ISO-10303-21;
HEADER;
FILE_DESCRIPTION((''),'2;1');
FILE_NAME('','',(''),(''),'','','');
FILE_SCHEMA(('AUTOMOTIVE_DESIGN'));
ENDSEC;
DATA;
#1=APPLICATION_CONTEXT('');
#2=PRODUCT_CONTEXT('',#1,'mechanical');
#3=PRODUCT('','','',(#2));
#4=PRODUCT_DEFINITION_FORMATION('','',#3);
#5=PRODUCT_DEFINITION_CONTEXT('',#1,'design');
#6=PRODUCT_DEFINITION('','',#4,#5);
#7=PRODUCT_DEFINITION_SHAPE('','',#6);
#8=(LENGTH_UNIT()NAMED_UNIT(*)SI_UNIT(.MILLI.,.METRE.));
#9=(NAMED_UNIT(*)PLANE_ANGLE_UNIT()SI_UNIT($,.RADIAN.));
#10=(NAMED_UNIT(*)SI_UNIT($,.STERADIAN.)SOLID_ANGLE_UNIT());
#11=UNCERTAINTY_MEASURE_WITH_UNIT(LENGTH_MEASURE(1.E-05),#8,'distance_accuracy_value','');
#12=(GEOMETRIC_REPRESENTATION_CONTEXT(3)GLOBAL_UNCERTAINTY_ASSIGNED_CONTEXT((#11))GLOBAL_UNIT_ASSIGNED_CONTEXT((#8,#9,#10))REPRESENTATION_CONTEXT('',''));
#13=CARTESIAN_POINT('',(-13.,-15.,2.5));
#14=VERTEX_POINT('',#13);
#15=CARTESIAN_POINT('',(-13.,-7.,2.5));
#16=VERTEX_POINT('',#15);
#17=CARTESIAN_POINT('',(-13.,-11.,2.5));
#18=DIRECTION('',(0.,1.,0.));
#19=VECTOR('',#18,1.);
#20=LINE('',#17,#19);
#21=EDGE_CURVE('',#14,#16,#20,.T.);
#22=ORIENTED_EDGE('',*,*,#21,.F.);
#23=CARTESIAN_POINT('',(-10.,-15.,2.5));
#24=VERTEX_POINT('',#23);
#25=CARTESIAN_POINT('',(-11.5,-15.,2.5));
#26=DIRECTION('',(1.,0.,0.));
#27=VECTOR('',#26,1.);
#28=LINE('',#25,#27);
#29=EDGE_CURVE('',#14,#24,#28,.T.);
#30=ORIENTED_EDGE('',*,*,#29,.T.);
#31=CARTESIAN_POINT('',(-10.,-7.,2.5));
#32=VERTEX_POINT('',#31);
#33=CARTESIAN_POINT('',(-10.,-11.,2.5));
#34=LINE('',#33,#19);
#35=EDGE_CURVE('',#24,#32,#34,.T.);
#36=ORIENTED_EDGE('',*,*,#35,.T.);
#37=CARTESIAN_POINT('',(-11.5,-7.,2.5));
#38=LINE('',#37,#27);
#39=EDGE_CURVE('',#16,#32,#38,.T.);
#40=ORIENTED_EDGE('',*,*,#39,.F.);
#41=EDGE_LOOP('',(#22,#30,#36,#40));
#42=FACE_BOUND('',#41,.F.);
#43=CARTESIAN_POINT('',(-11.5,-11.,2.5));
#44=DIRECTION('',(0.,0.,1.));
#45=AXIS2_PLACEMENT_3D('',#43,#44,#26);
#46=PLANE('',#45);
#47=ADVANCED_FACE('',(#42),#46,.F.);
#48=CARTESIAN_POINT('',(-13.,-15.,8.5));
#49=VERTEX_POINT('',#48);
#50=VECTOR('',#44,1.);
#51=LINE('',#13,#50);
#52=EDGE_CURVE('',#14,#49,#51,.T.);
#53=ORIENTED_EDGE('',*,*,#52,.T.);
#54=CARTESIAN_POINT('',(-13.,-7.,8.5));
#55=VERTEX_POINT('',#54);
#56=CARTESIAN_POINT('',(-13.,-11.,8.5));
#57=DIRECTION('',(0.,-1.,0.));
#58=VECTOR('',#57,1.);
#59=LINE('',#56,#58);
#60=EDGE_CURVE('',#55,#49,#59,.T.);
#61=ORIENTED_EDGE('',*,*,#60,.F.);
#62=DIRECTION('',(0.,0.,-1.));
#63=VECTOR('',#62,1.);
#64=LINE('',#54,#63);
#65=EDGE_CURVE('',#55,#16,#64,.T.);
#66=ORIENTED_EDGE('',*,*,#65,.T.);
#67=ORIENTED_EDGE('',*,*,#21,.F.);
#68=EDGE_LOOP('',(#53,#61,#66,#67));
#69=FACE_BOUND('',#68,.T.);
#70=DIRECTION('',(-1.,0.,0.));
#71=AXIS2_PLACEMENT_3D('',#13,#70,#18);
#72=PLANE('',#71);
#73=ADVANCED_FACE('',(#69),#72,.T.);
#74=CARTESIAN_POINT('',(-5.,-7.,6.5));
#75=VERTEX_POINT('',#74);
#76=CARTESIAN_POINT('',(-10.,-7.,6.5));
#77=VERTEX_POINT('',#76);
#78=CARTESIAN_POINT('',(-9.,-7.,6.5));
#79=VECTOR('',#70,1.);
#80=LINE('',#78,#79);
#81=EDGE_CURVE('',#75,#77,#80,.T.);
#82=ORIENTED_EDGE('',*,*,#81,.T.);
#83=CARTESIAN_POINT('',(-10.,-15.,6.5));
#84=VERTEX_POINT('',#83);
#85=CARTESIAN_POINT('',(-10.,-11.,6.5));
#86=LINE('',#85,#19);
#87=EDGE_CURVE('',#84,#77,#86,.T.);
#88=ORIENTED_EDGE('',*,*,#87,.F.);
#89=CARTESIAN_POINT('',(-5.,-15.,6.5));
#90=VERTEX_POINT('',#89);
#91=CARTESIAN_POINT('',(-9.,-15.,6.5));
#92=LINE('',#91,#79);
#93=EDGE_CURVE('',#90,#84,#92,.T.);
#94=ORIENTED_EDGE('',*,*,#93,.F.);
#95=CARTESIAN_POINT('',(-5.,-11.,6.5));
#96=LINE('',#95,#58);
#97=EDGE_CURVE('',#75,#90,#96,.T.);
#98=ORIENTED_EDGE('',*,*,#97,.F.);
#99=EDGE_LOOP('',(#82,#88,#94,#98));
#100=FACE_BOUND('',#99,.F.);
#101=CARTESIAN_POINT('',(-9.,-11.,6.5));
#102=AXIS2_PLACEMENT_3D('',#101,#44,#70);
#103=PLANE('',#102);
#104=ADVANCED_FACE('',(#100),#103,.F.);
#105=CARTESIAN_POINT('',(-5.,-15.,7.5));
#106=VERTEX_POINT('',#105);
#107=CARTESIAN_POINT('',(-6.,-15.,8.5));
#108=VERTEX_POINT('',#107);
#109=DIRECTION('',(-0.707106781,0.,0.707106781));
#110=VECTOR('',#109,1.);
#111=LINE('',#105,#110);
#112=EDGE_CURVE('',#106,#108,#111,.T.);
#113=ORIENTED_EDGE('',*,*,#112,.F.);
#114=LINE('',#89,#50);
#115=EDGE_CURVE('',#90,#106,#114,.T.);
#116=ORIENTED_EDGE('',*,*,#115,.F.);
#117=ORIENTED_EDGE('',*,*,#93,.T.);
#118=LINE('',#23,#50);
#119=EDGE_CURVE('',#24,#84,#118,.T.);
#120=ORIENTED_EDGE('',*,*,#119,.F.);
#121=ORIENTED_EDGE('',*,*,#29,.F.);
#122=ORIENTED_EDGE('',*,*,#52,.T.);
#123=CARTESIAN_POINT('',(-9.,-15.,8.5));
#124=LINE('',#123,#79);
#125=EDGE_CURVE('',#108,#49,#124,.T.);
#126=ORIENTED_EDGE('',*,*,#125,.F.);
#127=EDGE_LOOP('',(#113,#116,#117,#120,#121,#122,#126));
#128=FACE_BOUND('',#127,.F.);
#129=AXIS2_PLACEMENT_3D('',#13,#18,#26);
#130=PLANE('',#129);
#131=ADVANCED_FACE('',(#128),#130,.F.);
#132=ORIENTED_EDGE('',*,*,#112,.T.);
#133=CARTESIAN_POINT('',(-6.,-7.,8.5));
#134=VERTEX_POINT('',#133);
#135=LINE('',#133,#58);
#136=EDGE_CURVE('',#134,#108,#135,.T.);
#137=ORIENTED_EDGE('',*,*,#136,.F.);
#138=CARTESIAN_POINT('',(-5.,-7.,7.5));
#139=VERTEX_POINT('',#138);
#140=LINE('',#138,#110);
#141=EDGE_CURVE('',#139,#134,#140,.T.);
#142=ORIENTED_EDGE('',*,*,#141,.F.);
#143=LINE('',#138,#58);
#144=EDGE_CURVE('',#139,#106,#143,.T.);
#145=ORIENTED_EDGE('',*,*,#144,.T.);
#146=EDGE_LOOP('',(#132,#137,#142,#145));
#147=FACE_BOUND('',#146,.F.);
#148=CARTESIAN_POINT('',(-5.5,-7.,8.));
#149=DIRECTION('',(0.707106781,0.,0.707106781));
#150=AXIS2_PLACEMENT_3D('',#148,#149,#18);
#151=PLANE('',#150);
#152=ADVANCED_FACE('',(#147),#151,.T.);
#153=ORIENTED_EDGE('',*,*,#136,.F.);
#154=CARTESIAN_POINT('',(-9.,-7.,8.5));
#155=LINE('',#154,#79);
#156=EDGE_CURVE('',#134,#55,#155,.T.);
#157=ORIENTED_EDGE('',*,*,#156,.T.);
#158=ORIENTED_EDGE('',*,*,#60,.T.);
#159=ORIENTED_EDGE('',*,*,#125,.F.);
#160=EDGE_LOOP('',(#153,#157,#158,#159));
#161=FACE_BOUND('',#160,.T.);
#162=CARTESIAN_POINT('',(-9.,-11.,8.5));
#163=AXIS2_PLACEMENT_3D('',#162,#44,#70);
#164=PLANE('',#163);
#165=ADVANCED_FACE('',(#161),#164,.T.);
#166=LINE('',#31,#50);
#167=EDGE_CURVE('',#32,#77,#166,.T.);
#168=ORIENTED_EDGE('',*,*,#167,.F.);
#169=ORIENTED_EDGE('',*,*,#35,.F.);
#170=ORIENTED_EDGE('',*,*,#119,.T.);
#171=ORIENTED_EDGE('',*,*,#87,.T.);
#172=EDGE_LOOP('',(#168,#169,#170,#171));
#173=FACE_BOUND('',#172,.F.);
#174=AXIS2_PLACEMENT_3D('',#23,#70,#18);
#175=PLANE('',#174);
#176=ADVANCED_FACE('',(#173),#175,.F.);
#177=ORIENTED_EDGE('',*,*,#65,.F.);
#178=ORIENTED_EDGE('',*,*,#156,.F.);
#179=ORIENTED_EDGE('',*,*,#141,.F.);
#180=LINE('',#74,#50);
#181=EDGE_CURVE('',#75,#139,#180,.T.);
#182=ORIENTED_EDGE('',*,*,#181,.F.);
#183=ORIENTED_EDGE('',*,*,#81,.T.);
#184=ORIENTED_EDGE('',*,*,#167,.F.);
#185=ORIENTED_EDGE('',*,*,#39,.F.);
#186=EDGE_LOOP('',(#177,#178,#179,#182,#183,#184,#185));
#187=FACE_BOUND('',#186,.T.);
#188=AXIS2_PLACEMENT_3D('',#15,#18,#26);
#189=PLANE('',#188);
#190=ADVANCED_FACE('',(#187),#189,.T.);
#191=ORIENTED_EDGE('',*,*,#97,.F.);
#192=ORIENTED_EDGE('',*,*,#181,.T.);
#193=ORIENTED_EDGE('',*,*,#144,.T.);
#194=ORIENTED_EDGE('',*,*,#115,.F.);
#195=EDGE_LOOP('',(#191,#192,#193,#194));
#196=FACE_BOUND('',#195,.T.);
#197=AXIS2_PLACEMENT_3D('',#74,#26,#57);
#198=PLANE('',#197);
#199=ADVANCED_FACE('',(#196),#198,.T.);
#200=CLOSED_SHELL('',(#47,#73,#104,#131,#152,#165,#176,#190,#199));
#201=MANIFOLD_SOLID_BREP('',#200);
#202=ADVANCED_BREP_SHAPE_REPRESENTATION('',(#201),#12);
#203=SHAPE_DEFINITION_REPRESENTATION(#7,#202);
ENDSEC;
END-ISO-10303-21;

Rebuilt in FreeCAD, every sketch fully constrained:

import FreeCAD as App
import Part
import Sketcher

V = App.Vector
Q = App.Units.Quantity


def edges_at(feature, points):
    """Names of the edges that pass closest to the given points."""
    edges = feature.Shape.Edges
    near = lambda p: min(range(len(edges)), key=lambda i: edges[i].distToShape(Part.Vertex(*p))[0])
    return sorted({f"Edge{near(p) + 1}" for p in points})

doc = App.newDocument("Part")
body = doc.addObject("PartDesign::Body", "Body")

# Sketch on XY plane
sketch1 = body.newObject("Sketcher::SketchObject", "Sketch")
sketch1.AttachmentSupport = (doc.getObject("XY_Plane"), [""])
sketch1.MapMode = "FlatFace"
sketch1.AttachmentOffset = App.Placement(V(0, 0, 2.5), App.Rotation())
sketch1.addGeometry([
    Part.LineSegment(V(-13, -7, 0), V(-13, -15, 0)),
    Part.LineSegment(V(-13, -15, 0), V(-10, -15, 0)),
    Part.LineSegment(V(-10, -15, 0), V(-10, -7, 0)),
    Part.LineSegment(V(-10, -7, 0), V(-13, -7, 0)),
], False)
sketch1.addConstraint([
    Sketcher.Constraint("Coincident", 0, 2, 1, 1),
    Sketcher.Constraint("Coincident", 1, 2, 2, 1),
    Sketcher.Constraint("Coincident", 2, 2, 3, 1),
    Sketcher.Constraint("Coincident", 3, 2, 0, 1),
    Sketcher.Constraint("Vertical", 0),
    Sketcher.Constraint("Horizontal", 1),
    Sketcher.Constraint("Vertical", 2),
    Sketcher.Constraint("Horizontal", 3),
    Sketcher.Constraint("DistanceX", 1, 1, 1, 2, Q("3 mm")),
    Sketcher.Constraint("DistanceY", 0, 2, 0, 1, Q("8 mm")),
    Sketcher.Constraint("DistanceX", 0, 2, -1, 1, Q("13 mm")),
    Sketcher.Constraint("DistanceY", 0, 2, -1, 1, Q("15 mm")),
])
pad1 = body.newObject("PartDesign::Pad", "Pad")
pad1.Profile = sketch1
pad1.Length = 4
body2 = doc.addObject("PartDesign::Body", "Body001")

# Sketch on XY plane
sketch2 = body2.newObject("Sketcher::SketchObject", "Sketch001")
sketch2.AttachmentSupport = (doc.getObject("XY_Plane001"), [""])
sketch2.MapMode = "FlatFace"
sketch2.AttachmentOffset = App.Placement(V(0, 0, 6), App.Rotation())
sketch2.addGeometry([
    Part.LineSegment(V(-13, -7, 0), V(-13, -15, 0)),
    Part.LineSegment(V(-13, -15, 0), V(-5, -15, 0)),
    Part.LineSegment(V(-5, -15, 0), V(-5, -7, 0)),
    Part.LineSegment(V(-5, -7, 0), V(-13, -7, 0)),
], False)
sketch2.addConstraint([
    Sketcher.Constraint("Coincident", 0, 2, 1, 1),
    Sketcher.Constraint("Coincident", 1, 2, 2, 1),
    Sketcher.Constraint("Coincident", 2, 2, 3, 1),
    Sketcher.Constraint("Coincident", 3, 2, 0, 1),
    Sketcher.Constraint("Vertical", 0),
    Sketcher.Constraint("Horizontal", 1),
    Sketcher.Constraint("Vertical", 2),
    Sketcher.Constraint("Horizontal", 3),
    Sketcher.Constraint("Equal", 3, 0),
    Sketcher.Constraint("DistanceX", 1, 1, 1, 2, Q("8 mm")),
    Sketcher.Constraint("DistanceX", 0, 2, -1, 1, Q("13 mm")),
    Sketcher.Constraint("DistanceY", 0, 2, -1, 1, Q("15 mm")),
])
pad2 = body2.newObject("PartDesign::Pad", "Pad001")
pad2.Profile = sketch2
pad2.Length = 2
doc.recompute()

chamfer = body2.newObject("PartDesign::Chamfer", "Chamfer")
chamfer.Base = (pad2, edges_at(pad2, [(-13, -11, 8)]))
chamfer.Size = 1
body3 = doc.addObject("PartDesign::Body", "Body002")
doc.recompute()

body2.Placement = App.Placement(V(-18, -22, 0.5), App.Rotation(V(0, 0, 1), 180))
boolean = body3.newObject("PartDesign::Boolean", "Boolean")
boolean.Type = "Fuse"
boolean.addObjects([body2])
doc.recompute()

boolean2 = body3.newObject("PartDesign::Boolean", "Boolean001")
boolean2.Type = "Fuse"
boolean2.addObjects([body])

doc.recompute()
